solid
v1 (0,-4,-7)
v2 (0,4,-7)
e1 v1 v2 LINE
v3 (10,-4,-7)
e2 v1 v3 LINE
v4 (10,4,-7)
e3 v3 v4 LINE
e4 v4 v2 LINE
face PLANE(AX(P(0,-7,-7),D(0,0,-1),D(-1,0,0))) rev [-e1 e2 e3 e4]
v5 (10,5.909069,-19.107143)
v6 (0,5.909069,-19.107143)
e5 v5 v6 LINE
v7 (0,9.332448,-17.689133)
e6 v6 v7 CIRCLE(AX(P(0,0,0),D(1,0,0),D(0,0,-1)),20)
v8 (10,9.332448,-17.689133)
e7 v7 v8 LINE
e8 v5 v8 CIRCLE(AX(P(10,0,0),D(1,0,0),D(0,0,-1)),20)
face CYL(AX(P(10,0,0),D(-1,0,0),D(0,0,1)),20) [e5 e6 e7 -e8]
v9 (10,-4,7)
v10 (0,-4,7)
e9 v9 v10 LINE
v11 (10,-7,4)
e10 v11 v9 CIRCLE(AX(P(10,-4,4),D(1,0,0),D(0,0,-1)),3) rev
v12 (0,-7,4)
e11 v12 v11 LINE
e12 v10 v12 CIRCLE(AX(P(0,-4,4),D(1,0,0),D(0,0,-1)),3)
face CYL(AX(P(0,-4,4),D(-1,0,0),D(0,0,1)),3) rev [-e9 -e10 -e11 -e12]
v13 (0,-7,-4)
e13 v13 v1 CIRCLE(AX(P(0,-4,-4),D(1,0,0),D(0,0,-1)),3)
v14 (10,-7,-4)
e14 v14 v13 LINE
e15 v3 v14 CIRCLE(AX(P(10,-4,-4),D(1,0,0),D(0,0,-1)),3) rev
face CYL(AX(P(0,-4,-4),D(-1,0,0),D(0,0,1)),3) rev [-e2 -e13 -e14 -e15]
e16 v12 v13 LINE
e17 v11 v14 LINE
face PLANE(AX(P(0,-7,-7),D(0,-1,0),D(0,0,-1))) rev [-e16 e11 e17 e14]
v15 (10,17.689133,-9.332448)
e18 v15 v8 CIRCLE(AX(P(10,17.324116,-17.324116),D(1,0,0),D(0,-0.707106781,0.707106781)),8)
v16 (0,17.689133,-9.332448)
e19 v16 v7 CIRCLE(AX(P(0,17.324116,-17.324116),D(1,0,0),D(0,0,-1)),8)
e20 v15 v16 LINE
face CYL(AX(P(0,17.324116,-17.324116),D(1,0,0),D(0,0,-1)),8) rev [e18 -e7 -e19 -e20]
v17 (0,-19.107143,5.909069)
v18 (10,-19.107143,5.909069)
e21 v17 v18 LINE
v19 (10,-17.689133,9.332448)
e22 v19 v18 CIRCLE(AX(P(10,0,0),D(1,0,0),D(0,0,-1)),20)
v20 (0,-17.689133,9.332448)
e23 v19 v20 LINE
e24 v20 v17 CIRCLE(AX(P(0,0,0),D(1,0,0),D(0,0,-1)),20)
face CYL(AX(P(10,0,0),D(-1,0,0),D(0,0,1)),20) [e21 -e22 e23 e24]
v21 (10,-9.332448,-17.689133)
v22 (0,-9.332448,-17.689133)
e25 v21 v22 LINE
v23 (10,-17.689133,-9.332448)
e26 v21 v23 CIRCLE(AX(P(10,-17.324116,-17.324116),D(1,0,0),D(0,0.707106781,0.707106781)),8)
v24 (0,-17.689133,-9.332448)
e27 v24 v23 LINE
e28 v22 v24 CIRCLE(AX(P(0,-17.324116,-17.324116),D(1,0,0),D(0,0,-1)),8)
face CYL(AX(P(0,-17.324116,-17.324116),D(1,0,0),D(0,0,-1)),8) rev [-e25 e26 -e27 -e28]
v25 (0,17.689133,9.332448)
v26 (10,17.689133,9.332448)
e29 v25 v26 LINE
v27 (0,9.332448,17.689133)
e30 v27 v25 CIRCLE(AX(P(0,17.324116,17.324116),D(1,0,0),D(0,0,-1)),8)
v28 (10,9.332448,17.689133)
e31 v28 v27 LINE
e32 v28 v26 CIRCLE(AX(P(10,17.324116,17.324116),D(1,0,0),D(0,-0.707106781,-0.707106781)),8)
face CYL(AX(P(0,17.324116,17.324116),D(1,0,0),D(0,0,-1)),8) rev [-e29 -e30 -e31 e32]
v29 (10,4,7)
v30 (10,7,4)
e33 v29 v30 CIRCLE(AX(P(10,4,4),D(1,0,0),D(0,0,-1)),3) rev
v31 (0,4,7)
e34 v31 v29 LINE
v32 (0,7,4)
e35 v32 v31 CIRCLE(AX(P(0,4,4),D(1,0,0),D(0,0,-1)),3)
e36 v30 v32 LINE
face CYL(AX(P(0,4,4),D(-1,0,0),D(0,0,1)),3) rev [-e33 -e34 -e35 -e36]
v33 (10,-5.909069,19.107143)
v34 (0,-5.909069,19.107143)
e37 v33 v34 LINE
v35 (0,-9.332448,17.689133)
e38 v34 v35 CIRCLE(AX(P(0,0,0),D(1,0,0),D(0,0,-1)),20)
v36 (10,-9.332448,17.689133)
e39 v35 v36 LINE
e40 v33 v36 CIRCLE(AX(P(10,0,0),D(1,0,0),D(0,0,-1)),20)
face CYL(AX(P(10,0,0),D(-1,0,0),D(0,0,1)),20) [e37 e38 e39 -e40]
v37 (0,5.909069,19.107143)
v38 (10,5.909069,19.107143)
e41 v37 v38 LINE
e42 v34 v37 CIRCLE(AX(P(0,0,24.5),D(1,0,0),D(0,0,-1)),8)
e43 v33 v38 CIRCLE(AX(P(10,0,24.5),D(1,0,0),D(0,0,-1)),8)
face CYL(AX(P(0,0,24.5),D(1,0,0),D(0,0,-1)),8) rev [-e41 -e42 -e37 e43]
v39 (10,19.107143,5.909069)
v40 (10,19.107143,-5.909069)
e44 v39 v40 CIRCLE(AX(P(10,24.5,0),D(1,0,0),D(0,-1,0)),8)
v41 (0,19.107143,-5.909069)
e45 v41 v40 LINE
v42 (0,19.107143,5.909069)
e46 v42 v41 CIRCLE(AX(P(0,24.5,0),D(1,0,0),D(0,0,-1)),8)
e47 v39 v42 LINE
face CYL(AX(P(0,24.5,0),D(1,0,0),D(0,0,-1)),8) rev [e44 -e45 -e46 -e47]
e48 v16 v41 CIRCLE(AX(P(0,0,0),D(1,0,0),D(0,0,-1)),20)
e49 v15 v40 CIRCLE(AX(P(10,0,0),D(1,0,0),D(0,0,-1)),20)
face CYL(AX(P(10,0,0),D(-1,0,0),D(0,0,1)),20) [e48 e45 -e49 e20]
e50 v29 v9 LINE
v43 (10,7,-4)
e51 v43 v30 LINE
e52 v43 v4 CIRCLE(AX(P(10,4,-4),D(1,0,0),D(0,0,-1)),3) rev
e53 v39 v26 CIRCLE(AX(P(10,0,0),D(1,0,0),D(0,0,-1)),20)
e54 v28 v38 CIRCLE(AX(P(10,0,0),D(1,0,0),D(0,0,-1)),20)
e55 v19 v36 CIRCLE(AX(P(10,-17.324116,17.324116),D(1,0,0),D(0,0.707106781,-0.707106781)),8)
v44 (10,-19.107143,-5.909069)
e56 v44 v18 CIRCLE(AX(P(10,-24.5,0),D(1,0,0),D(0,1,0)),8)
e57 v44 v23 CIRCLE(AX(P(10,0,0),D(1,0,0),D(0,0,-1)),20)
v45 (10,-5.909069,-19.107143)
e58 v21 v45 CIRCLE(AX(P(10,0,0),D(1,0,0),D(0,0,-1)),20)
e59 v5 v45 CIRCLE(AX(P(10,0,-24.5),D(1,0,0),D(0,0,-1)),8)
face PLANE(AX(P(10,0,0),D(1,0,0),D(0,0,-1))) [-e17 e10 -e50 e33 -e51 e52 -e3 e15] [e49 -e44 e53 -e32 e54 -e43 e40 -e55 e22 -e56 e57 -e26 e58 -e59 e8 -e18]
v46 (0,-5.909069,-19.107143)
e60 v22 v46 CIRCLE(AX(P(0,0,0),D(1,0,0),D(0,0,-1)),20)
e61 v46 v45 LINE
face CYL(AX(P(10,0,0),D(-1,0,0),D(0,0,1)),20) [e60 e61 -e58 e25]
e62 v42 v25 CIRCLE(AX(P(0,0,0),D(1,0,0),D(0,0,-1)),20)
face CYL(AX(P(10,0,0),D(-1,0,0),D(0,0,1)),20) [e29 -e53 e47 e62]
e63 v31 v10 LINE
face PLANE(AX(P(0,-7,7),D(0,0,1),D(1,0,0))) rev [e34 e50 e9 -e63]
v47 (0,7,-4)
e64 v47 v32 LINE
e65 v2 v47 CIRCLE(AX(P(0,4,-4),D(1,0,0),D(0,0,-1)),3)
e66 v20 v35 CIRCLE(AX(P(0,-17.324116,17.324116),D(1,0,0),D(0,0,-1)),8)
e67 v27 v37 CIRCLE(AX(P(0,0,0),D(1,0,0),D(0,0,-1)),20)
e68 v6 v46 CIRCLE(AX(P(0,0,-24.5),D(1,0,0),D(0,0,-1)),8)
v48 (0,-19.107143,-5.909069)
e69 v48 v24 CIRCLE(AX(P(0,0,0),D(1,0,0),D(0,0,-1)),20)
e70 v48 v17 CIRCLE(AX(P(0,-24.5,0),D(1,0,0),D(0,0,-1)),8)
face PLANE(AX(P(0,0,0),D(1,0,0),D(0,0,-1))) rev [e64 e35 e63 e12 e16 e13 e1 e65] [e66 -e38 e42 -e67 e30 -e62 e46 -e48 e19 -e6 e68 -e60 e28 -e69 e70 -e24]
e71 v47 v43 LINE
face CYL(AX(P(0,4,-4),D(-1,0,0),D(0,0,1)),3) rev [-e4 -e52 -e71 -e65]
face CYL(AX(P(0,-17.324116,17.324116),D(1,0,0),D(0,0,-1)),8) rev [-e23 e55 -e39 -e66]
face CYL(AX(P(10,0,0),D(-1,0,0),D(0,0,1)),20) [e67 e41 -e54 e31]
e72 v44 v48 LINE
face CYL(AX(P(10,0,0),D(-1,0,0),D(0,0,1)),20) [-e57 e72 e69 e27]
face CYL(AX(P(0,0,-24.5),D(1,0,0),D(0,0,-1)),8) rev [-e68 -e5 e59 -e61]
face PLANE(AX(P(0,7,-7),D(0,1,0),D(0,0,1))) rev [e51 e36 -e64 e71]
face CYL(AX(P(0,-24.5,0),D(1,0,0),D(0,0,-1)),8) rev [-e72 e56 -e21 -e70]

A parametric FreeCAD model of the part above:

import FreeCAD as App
import Part
import Sketcher
from FreeCAD import Vector
Q = App.Units.Quantity


def edges_at(feature, points):
    """Names of the edges that pass closest to the given points."""
    edges = feature.Shape.Edges
    near = lambda p: min(range(len(edges)), key=lambda i: edges[i].distToShape(Part.Vertex(*p))[0])
    return sorted({f"Edge{near(p) + 1}" for p in points})

doc = App.newDocument("Part")
body = doc.addObject("PartDesign::Body", "Body")

# Sketch on YZ plane
sketch1 = body.newObject("Sketcher::SketchObject", "Sketch")
sketch1.AttachmentSupport = (doc.getObject("YZ_Plane"), [""])
sketch1.MapMode = "FlatFace"
sketch1.addGeometry(Part.Circle(Vector(0, 0, 0), Vector(0, 0, 1), 20), False)
sketch1.addConstraint([
    Sketcher.Constraint("Coincident", 0, 3, -1, 1),
    Sketcher.Constraint("Diameter", 0, Q("40 mm")),
])
pad1 = body.newObject("PartDesign::Pad", "Pad")
pad1.Profile = sketch1
pad1.Length = 10

# Sketch on YZ plane
sketch2 = body.newObject("Sketcher::SketchObject", "Sketch001")
sketch2.AttachmentSupport = (doc.getObject("YZ_Plane"), [""])
sketch2.MapMode = "FlatFace"
sketch2.AttachmentOffset = App.Placement(Vector(0, 0, 10), App.Rotation())
sketch2.addGeometry([
    Part.LineSegment(Vector(7, 7, 0), Vector(-7, 7, 0)),
    Part.LineSegment(Vector(-7, 7, 0), Vector(-7, -7, 0)),
    Part.LineSegment(Vector(-7, -7, 0), Vector(7, -7, 0)),
    Part.LineSegment(Vector(7, -7, 0), Vector(7, 7, 0)),
], False)
sketch2.addConstraint([
    Sketcher.Constraint("Coincident", 0, 2, 1, 1),
    Sketcher.Constraint("Coincident", 1, 2, 2, 1),
    Sketcher.Constraint("Coincident", 2, 2, 3, 1),
    Sketcher.Constraint("Coincident", 3, 2, 0, 1),
    Sketcher.Constraint("Horizontal", 0),
    Sketcher.Constraint("Vertical", 1),
    Sketcher.Constraint("Horizontal", 2),
    Sketcher.Constraint("Vertical", 3),
    Sketcher.Constraint("Symmetric", 0, 2, 2, 2, -1, 1),
    Sketcher.Constraint("Equal", 2, 1),
    Sketcher.Constraint("DistanceX", 0, 2, 0, 1, Q("14 mm")),
])
pocket1 = body.newObject("PartDesign::Pocket", "Pocket")
pocket1.Profile = sketch2
pocket1.Length = 10
doc.recompute()

fillet = body.newObject("PartDesign::Fillet", "Fillet")
fillet.Base = (pocket1, edges_at(pocket1, [
    (5, 7, 7),
    (5, 7, -7),
    (5, -7, -7),
    (5, -7, 7),
]))
fillet.Radius = 3

# Sketch on YZ plane
sketch3 = body.newObject("Sketcher::SketchObject", "Sketch002")
sketch3.AttachmentSupport = (doc.getObject("YZ_Plane"), [""])
sketch3.MapMode = "FlatFace"
sketch3.AttachmentOffset = App.Placement(Vector(0, 0, 10), App.Rotation())
sketch3.addGeometry(Part.Circle(Vector(0, 24, 0), Vector(0, 0, 1), 8), False)
sketch3.addConstraint([
    Sketcher.Constraint("PointOnObject", 0, 3, -2),
    Sketcher.Constraint("Diameter", 0, Q("16 mm")),
    Sketcher.Constraint("DistanceY", -1, 1, 0, 3, Q("24.5 mm")),
])
pocket2 = body.newObject("PartDesign::Pocket", "Pocket001")
pocket2.Profile = sketch3
pocket2.Length = 10

# Sketch on YZ plane
sketch4 = body.newObject("Sketcher::SketchObject", "Sketch003")
sketch4.AttachmentSupport = (doc.getObject("YZ_Plane"), [""])
sketch4.MapMode = "FlatFace"
sketch4.AttachmentOffset = App.Placement(Vector(0, 0, 10), App.Rotation())
sketch4.addGeometry([
    Part.Circle(Vector(0, -24, 0), Vector(0, 0, 1), 8),
    Part.Circle(Vector(0, 24, 0), Vector(0, 0, 1), 8),
], False)
sketch4.addConstraint([
    Sketcher.Constraint("Equal", 0, 1),
    Sketcher.Constraint("Symmetric", 0, 3, 1, 3, -1, 1),
    Sketcher.Constraint("PointOnObject", 0, 3, -2),
    Sketcher.Constraint("Diameter", 0, Q("16 mm")),
    Sketcher.Constraint("DistanceY", 0, 3, 1, 3, Q("49 mm")),
])
pocket3 = body.newObject("PartDesign::Pocket", "Pocket002")
pocket3.Profile = sketch4
pocket3.Length = 10
doc.recompute()

polarpattern = body.newObject("PartDesign::PolarPattern", "PolarPattern")
polarpattern.Originals = [pocket2]
polarpattern.Axis = (doc.getObject("X_Axis"), [""])
polarpattern.Angle = 360
polarpattern.Occurrences = 8
body.Tip = polarpattern

doc.recompute()
